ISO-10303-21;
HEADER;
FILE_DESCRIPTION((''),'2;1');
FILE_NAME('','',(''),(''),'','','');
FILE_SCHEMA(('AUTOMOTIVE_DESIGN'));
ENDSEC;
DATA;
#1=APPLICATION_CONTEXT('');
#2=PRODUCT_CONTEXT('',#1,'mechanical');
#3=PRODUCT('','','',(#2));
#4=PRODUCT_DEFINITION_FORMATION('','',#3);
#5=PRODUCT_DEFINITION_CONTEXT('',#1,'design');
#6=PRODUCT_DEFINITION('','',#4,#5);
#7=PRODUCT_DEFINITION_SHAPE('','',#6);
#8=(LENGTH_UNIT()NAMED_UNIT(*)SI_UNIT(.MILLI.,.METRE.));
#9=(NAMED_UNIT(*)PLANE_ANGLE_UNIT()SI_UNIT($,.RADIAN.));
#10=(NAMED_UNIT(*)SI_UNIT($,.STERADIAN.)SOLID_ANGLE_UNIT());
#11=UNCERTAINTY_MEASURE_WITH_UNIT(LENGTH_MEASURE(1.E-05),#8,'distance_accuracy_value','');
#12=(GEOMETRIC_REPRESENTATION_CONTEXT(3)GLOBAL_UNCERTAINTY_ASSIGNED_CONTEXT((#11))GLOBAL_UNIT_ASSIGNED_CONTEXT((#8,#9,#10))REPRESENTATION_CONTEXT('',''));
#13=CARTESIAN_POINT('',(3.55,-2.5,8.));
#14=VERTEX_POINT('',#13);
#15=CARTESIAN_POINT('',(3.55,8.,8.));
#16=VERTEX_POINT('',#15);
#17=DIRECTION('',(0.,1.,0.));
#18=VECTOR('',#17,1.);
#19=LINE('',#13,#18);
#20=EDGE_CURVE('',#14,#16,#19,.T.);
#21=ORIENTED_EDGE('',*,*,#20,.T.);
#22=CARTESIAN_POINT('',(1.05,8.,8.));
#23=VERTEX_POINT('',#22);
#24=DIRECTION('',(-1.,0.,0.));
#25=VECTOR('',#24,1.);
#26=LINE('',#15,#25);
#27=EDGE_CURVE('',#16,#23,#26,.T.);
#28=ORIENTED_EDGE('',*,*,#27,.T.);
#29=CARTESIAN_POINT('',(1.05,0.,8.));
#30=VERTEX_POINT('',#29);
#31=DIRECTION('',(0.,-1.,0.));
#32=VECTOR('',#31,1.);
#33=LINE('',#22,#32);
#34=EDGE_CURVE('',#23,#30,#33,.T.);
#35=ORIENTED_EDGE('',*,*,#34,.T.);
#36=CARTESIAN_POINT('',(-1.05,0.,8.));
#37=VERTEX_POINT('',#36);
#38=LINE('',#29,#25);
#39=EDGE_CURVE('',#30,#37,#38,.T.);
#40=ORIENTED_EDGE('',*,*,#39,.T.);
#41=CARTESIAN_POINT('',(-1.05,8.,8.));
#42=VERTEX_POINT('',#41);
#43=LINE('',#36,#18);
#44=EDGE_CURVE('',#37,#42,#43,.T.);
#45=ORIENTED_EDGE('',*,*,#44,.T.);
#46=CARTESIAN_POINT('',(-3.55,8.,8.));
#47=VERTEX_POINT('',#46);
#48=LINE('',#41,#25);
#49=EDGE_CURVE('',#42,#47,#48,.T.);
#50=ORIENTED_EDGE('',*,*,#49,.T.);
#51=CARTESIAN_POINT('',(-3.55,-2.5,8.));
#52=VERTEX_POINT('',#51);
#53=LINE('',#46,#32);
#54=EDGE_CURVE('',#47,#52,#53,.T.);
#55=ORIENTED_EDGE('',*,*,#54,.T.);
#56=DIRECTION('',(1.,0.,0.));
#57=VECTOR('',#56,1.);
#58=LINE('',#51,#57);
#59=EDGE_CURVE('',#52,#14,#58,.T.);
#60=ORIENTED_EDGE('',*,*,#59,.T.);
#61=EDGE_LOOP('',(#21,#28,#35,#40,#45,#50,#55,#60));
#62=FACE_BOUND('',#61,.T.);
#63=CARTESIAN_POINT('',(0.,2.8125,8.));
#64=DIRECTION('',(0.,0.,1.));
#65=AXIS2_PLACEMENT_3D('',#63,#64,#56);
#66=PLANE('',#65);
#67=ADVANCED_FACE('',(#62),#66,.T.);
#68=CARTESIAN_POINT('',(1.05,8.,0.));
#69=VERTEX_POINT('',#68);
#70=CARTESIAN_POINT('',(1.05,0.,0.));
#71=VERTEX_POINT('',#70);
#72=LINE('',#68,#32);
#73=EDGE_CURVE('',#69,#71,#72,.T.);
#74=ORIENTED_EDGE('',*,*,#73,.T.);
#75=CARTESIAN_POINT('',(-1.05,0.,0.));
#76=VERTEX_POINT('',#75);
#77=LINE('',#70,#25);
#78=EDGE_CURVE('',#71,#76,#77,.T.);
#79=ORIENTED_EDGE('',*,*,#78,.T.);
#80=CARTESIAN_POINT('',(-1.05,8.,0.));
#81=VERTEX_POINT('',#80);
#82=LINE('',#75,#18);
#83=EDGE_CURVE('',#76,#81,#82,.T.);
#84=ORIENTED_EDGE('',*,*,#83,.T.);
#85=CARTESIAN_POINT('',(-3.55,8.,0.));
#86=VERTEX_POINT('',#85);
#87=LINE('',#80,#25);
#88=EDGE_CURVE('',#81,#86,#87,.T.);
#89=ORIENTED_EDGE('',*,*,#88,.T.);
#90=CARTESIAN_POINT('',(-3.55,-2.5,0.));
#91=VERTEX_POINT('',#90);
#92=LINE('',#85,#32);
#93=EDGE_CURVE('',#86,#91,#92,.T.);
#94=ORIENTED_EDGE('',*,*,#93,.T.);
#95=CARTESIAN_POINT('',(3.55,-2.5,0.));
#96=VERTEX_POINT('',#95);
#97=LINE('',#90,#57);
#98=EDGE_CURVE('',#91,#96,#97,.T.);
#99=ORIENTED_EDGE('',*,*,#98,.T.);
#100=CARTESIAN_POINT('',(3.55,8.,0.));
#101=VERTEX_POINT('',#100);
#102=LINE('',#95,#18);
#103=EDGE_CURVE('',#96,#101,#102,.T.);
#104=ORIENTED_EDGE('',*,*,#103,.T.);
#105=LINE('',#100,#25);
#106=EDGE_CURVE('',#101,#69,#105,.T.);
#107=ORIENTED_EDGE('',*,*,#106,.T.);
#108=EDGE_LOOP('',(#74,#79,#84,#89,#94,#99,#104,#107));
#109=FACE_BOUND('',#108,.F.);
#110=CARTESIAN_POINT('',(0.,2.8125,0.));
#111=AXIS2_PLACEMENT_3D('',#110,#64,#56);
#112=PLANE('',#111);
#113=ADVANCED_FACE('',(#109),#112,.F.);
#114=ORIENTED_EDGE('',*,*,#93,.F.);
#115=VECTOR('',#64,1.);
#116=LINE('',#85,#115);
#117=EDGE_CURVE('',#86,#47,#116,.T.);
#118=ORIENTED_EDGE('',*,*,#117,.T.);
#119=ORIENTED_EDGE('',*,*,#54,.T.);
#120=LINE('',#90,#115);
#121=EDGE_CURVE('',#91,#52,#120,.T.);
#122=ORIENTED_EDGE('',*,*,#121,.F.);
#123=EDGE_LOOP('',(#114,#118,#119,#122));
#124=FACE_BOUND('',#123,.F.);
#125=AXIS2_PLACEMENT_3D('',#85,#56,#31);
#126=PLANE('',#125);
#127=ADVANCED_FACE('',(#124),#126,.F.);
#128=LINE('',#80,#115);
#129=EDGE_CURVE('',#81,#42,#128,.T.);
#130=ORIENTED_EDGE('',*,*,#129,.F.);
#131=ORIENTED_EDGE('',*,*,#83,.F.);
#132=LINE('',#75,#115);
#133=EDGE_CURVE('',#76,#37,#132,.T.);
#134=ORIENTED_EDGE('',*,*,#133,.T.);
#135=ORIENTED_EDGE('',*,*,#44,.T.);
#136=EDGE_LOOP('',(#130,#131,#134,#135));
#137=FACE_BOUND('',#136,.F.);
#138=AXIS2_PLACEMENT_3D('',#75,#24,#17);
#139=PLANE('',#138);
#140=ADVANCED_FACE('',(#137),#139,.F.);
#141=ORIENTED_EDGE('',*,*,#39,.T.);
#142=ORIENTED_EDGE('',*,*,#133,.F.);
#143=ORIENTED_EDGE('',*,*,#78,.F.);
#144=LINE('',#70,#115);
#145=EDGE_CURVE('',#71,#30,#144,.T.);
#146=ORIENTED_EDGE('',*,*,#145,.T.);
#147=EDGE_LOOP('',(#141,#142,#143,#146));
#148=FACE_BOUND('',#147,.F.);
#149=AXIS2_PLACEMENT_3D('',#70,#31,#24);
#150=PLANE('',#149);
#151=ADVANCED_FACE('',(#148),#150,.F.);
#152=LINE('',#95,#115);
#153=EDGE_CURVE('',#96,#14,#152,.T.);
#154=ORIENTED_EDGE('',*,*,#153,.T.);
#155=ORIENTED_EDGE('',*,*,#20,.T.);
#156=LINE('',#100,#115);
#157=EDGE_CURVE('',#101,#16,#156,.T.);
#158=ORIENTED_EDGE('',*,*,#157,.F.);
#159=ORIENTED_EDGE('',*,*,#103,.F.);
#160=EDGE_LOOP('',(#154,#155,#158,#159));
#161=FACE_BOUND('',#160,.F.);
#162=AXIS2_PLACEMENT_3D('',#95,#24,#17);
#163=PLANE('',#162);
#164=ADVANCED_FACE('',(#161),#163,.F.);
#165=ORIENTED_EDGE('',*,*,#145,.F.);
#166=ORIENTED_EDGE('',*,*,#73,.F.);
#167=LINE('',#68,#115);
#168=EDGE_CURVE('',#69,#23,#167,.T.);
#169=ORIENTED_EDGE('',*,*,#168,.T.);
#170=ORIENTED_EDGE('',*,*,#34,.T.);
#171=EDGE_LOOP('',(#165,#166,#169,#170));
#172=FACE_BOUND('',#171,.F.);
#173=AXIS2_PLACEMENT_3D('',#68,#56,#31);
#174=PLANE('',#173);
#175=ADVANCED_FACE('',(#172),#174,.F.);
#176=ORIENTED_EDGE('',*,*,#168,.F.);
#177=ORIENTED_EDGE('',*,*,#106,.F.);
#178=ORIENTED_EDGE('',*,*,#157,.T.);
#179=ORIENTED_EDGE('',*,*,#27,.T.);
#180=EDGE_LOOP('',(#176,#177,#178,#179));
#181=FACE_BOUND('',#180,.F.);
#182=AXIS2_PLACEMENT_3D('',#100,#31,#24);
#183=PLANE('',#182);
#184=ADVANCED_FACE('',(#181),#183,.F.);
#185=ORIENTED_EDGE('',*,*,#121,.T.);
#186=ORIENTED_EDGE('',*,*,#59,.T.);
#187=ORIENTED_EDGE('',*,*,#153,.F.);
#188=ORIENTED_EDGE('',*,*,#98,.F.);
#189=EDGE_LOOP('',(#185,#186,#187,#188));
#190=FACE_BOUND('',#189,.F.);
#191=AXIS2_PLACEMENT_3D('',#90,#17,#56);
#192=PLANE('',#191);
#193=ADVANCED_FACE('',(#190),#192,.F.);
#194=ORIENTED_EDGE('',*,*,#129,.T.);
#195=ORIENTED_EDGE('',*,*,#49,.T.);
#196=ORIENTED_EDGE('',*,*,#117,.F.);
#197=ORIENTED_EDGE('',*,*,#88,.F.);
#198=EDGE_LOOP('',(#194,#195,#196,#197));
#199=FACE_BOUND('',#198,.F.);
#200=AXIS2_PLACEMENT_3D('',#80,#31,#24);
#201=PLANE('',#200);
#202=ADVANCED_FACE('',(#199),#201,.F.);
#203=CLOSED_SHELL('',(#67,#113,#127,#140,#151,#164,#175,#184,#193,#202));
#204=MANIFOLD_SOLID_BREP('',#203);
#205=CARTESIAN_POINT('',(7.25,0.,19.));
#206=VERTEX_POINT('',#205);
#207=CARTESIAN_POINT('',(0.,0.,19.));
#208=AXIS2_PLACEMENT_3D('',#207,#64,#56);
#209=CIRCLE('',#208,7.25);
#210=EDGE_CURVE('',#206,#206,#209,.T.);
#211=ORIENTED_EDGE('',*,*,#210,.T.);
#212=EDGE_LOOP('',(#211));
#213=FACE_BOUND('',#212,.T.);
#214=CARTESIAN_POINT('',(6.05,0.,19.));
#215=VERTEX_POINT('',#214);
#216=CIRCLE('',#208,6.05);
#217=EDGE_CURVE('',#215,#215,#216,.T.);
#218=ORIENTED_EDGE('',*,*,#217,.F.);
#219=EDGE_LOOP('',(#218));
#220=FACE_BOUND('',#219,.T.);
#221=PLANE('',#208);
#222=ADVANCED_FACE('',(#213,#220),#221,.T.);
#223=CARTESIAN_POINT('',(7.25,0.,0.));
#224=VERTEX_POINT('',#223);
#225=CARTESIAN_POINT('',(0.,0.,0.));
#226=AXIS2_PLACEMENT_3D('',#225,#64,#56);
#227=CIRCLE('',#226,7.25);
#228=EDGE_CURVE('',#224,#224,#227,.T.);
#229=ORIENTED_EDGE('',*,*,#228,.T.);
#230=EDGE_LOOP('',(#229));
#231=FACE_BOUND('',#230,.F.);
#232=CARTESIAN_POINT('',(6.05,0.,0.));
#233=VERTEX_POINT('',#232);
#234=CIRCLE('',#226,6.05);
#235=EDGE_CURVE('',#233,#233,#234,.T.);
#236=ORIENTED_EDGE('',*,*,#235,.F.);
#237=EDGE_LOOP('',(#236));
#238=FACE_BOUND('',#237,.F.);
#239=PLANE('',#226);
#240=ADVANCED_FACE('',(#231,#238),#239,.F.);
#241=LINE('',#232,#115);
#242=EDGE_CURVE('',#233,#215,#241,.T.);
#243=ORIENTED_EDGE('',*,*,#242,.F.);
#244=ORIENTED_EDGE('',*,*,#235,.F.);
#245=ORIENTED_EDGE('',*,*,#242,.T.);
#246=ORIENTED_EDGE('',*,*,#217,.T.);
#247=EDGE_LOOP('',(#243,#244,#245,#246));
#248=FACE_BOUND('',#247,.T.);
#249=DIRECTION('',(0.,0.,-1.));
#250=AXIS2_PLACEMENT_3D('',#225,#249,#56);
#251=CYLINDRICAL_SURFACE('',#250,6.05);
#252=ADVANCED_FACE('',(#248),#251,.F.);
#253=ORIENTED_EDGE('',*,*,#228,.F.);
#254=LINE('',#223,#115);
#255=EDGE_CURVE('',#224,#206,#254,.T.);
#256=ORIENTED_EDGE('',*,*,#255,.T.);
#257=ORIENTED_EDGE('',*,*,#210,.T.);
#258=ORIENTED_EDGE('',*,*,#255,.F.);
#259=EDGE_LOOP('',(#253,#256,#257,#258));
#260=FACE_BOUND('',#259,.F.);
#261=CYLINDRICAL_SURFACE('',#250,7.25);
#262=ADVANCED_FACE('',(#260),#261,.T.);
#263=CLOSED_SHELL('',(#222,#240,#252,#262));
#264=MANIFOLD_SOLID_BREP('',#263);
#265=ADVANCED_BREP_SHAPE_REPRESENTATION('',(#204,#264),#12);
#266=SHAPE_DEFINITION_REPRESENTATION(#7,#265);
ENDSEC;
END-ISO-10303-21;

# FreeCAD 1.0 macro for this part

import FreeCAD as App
import Part
import Sketcher

V = App.Vector
Q = App.Units.Quantity

doc = App.newDocument("Part")
body = doc.addObject("PartDesign::Body", "Body")

sketch1 = body.newObject("Sketcher::SketchObject", "Sketch")
sketch1.AttachmentSupport = (doc.getObject("XY_Plane"), [""])
sketch1.MapMode = "FlatFace"
sketch1.addGeometry(Part.LineSegment(V(1.1, 0, 0), V(-1.1, 0, 0)), False)
sketch1.addGeometry(Part.LineSegment(V(-1.1, 0, 0), V(-1.1, 8, 0)), False)
sketch1.addGeometry(Part.LineSegment(V(-1.1, 8, 0), V(-3.5, 8, 0)), False)
sketch1.addGeometry(Part.LineSegment(V(-3.5, 8, 0), V(-3.5, -2.5, 0)), False)
sketch1.addGeometry(Part.LineSegment(V(-3.5, -2.5, 0), V(3.5, -2.5, 0)), False)
sketch1.addGeometry(Part.LineSegment(V(3.5, -2.5, 0), V(3.5, 8, 0)), False)
sketch1.addGeometry(Part.LineSegment(V(3.5, 8, 0), V(1.1, 8, 0)), False)
sketch1.addGeometry(Part.LineSegment(V(1.1, 8, 0), V(1.1, 0, 0)), False)
sketch1.addConstraint(Sketcher.Constraint("Coincident", 0, 2, 1, 1))
sketch1.addConstraint(Sketcher.Constraint("Coincident", 1, 2, 2, 1))
sketch1.addConstraint(Sketcher.Constraint("Coincident", 2, 2, 3, 1))
sketch1.addConstraint(Sketcher.Constraint("Coincident", 3, 2, 4, 1))
sketch1.addConstraint(Sketcher.Constraint("Coincident", 4, 2, 5, 1))
sketch1.addConstraint(Sketcher.Constraint("Coincident", 5, 2, 6, 1))
sketch1.addConstraint(Sketcher.Constraint("Coincident", 6, 2, 7, 1))
sketch1.addConstraint(Sketcher.Constraint("Coincident", 7, 2, 0, 1))
sketch1.addConstraint(Sketcher.Constraint("Horizontal", 0))
sketch1.addConstraint(Sketcher.Constraint("Vertical", 1))
sketch1.addConstraint(Sketcher.Constraint("Horizontal", 2))
sketch1.addConstraint(Sketcher.Constraint("Vertical", 3))
sketch1.addConstraint(Sketcher.Constraint("Horizontal", 4))
sketch1.addConstraint(Sketcher.Constraint("Vertical", 5))
sketch1.addConstraint(Sketcher.Constraint("Horizontal", 6))
sketch1.addConstraint(Sketcher.Constraint("Vertical", 7))
sketch1.addConstraint(Sketcher.Constraint("Symmetric", 0, 2, 7, 2, -1, 1))
sketch1.addConstraint(Sketcher.Constraint("Symmetric", 2, 2, 5, 2, -2))
sketch1.addConstraint(Sketcher.Constraint("DistanceY", 1, 1, 1, 2, Q("8 mm")))
sketch1.addConstraint(Sketcher.Constraint("DistanceX", 0, 2, 0, 1, Q("2.1 mm")))
sketch1.addConstraint(Sketcher.Constraint("DistanceX", 2, 2, 2, 1, Q("2.5 mm")))
sketch1.addConstraint(Sketcher.Constraint("DistanceY", 3, 2, 3, 1, Q("10.5 mm")))
pad1 = body.newObject("PartDesign::Pad", "Pad")
pad1.Profile = sketch1
pad1.Length = 8
body2 = doc.addObject("PartDesign::Body", "Body001")

sketch2 = body2.newObject("Sketcher::SketchObject", "Sketch001")
sketch2.AttachmentSupport = (doc.getObject("XY_Plane001"), [""])
sketch2.MapMode = "FlatFace"
sketch2.addGeometry(Part.Circle(V(0, 0, 0), V(0, 0, 1), 7), False)
sketch2.addGeometry(Part.Circle(V(0, 0, 0), V(0, 0, 1), 6), False)
sketch2.addConstraint(Sketcher.Constraint("Coincident", 0, 3, -1, 1))
sketch2.addConstraint(Sketcher.Constraint("Coincident", 1, 3, -1, 1))
sketch2.addConstraint(Sketcher.Constraint("Diameter", 0, Q("14.5 mm")))
sketch2.addConstraint(Sketcher.Constraint("Diameter", 1, Q("12.1 mm")))
pad2 = body2.newObject("PartDesign::Pad", "Pad001")
pad2.Profile = sketch2
pad2.Length = 19

doc.recompute()
